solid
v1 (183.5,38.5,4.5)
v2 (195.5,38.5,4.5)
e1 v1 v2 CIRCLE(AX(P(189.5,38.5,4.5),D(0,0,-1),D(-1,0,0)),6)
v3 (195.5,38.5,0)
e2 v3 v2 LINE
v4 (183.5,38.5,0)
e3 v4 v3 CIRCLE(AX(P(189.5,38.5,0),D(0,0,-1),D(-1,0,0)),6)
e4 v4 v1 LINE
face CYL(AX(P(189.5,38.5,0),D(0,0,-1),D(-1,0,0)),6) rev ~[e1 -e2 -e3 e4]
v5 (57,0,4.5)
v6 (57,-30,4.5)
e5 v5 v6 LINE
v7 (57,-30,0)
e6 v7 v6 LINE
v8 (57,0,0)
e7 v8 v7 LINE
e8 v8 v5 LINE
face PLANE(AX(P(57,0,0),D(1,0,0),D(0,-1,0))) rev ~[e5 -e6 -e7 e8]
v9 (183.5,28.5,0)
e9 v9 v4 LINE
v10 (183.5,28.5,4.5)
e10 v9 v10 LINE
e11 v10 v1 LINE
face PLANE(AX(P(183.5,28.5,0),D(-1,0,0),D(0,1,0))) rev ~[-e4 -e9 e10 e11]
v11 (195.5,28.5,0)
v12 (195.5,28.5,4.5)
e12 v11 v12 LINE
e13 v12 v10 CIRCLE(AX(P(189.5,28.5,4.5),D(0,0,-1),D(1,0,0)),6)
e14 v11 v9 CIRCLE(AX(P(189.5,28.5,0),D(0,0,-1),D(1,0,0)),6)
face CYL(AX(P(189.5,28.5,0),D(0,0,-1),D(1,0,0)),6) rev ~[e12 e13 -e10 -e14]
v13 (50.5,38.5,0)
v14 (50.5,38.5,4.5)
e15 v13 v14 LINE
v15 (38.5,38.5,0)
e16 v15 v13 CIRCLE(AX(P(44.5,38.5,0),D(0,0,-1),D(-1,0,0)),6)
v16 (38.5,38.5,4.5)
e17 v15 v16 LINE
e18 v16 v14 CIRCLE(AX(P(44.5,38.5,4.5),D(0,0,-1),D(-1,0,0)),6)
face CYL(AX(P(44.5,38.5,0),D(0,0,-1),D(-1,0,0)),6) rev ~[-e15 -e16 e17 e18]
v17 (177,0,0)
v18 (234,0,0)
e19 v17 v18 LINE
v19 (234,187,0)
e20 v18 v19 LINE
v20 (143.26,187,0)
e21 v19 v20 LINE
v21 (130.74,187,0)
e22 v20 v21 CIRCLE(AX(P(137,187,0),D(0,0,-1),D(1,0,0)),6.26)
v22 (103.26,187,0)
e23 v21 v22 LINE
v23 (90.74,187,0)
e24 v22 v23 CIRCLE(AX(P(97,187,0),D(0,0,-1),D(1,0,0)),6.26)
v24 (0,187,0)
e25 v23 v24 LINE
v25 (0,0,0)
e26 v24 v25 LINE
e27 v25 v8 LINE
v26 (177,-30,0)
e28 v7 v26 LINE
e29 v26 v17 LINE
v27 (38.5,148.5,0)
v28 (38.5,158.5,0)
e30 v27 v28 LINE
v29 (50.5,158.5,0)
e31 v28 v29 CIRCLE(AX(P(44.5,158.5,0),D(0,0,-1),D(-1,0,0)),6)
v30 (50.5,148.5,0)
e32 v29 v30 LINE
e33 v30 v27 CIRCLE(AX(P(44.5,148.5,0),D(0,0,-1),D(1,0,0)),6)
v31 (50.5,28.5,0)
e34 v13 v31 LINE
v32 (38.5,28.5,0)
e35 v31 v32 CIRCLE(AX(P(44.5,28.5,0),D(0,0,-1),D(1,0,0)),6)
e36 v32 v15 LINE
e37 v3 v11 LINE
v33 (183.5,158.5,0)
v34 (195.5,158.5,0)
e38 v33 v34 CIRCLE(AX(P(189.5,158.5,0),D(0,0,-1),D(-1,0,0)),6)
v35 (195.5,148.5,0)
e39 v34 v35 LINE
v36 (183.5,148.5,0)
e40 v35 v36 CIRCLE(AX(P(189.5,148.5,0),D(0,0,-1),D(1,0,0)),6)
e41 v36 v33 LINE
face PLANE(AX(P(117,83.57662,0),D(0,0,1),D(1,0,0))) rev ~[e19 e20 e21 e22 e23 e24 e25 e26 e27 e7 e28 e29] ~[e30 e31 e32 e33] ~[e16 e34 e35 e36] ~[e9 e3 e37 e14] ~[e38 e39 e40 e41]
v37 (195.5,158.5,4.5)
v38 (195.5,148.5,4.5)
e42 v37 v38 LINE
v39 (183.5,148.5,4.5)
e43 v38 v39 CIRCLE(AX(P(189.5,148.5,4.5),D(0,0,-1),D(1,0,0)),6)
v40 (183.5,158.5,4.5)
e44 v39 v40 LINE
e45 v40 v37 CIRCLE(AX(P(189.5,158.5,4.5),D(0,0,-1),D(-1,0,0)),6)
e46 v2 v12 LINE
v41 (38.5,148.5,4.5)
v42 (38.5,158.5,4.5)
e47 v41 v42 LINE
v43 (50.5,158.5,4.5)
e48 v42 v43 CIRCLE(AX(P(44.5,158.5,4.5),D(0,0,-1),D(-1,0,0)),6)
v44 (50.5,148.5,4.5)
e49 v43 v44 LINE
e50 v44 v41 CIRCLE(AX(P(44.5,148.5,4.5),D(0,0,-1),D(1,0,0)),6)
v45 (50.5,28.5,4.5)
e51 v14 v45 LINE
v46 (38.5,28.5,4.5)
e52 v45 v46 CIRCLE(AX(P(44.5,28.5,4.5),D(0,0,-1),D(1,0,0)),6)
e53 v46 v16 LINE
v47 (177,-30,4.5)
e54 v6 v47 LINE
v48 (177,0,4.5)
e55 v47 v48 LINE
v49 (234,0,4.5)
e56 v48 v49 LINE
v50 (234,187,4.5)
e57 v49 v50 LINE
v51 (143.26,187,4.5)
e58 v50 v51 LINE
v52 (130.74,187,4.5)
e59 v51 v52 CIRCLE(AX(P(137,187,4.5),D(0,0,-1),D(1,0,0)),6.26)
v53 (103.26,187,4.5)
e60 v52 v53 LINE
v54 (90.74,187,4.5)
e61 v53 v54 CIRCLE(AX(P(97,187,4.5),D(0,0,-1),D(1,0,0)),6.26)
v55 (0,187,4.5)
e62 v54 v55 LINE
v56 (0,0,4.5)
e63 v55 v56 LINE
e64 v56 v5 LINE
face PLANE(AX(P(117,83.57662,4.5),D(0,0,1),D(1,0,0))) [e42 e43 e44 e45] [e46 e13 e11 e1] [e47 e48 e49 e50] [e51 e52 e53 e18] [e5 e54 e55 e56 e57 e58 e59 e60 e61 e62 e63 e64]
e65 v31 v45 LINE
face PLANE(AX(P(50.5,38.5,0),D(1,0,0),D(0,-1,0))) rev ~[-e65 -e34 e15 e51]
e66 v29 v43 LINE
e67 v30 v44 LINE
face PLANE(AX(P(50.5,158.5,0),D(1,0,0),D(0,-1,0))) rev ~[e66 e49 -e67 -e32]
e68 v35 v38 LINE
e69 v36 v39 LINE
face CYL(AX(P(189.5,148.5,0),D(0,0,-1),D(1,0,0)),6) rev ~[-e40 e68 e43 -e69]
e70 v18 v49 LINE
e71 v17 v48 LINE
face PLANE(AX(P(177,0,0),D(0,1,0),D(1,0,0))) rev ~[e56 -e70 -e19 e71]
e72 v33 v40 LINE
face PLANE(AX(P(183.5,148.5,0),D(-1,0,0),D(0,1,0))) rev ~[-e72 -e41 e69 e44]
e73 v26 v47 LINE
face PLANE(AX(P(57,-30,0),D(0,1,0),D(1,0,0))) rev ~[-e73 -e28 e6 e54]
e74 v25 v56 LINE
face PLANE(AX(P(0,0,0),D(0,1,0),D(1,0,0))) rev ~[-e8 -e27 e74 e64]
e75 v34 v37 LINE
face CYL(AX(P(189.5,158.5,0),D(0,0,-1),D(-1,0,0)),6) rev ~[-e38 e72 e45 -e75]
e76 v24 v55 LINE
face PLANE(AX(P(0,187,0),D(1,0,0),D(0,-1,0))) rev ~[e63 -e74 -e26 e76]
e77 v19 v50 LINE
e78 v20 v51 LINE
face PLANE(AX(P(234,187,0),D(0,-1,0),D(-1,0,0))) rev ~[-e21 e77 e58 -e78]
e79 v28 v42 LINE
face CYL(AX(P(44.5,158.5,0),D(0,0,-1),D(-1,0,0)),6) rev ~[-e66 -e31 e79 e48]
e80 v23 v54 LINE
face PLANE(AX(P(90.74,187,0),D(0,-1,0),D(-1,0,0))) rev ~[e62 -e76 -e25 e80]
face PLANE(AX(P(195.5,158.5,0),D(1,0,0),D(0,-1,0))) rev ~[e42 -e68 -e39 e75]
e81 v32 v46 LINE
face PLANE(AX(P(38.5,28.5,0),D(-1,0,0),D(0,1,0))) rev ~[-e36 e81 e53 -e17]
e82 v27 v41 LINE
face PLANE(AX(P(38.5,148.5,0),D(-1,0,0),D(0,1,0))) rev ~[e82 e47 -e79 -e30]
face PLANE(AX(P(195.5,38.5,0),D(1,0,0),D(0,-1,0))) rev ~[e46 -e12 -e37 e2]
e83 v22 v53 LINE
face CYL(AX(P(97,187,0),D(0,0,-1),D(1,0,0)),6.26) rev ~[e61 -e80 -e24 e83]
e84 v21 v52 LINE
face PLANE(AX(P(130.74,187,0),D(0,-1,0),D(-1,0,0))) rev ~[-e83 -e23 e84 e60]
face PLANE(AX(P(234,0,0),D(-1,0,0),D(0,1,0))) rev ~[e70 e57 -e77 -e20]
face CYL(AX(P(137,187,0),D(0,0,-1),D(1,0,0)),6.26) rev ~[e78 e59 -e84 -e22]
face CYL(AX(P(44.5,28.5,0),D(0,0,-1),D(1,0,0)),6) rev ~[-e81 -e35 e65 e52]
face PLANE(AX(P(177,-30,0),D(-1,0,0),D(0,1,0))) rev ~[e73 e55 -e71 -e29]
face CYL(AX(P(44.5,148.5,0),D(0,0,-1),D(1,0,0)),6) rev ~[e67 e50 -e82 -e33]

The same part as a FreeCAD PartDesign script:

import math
import FreeCAD as App
import Part
import Sketcher

doc = App.newDocument("Part")
body = doc.addObject("PartDesign::Body", "Body")

# Sketch on XY plane
sketch1 = body.newObject("Sketcher::SketchObject", "Sketch")
sketch1.AttachmentSupport = (doc.getObject("XY_Plane"), [""])
sketch1.MapMode = "FlatFace"
sketch1.addGeometry([
    Part.LineSegment(App.Vector(0, 187, 0), App.Vector(0, 0, 0)),  # 0
    Part.LineSegment(App.Vector(0, 0, 0), App.Vector(57, 0, 0)),  # 1
    Part.LineSegment(App.Vector(57, 0, 0), App.Vector(57, -30, 0)),  # 2
    Part.LineSegment(App.Vector(57, -30, 0), App.Vector(177, -30, 0)),  # 3
    Part.LineSegment(App.Vector(177, -30, 0), App.Vector(177, 0, 0)),  # 4
    Part.LineSegment(App.Vector(177, 0, 0), App.Vector(234, 0, 0)),  # 5
    Part.LineSegment(App.Vector(234, 0, 0), App.Vector(234, 187, 0)),  # 6
    Part.LineSegment(App.Vector(234, 187, 0), App.Vector(143, 187, 0)),  # 7
    Part.ArcOfCircle(Part.Circle(App.Vector(137, 187, 0), App.Vector(0, 0, 1), 6), math.radians(180), math.radians(360)),  # 8
    Part.LineSegment(App.Vector(131, 187, 0), App.Vector(103, 187, 0)),  # 9
    Part.ArcOfCircle(Part.Circle(App.Vector(97, 187, 0), App.Vector(0, 0, 1), 6), math.radians(180), math.radians(360)),  # 10
    Part.LineSegment(App.Vector(91, 187, 0), App.Vector(0, 187, 0)),  # 11
    Part.LineSegment(App.Vector(50, 38, 0), App.Vector(50, 28, 0)),  # 12
    Part.ArcOfCircle(Part.Circle(App.Vector(44, 28, 0), App.Vector(0, 0, 1), 6), math.radians(180), math.radians(360)),  # 13
    Part.LineSegment(App.Vector(38, 28, 0), App.Vector(38, 38, 0)),  # 14
    Part.ArcOfCircle(Part.Circle(App.Vector(44, 38, 0), App.Vector(0, 0, 1), 6), math.radians(0), math.radians(180)),  # 15
    Part.LineSegment(App.Vector(196, 38, 0), App.Vector(196, 28, 0)),  # 16
    Part.ArcOfCircle(Part.Circle(App.Vector(190, 28, 0), App.Vector(0, 0, 1), 6), math.radians(180), math.radians(360)),  # 17
    Part.LineSegment(App.Vector(184, 28, 0), App.Vector(184, 38, 0)),  # 18
    Part.ArcOfCircle(Part.Circle(App.Vector(190, 38, 0), App.Vector(0, 0, 1), 6), math.radians(0), math.radians(180)),  # 19
    Part.LineSegment(App.Vector(50, 158, 0), App.Vector(50, 148, 0)),  # 20
    Part.ArcOfCircle(Part.Circle(App.Vector(44, 148, 0), App.Vector(0, 0, 1), 6), math.radians(180), math.radians(360)),  # 21
    Part.LineSegment(App.Vector(38, 148, 0), App.Vector(38, 158, 0)),  # 22
    Part.ArcOfCircle(Part.Circle(App.Vector(44, 158, 0), App.Vector(0, 0, 1), 6), math.radians(0), math.radians(180)),  # 23
    Part.LineSegment(App.Vector(196, 158, 0), App.Vector(196, 148, 0)),  # 24
    Part.ArcOfCircle(Part.Circle(App.Vector(190, 148, 0), App.Vector(0, 0, 1), 6), math.radians(180), math.radians(360)),  # 25
    Part.LineSegment(App.Vector(184, 148, 0), App.Vector(184, 158, 0)),  # 26
    Part.ArcOfCircle(Part.Circle(App.Vector(190, 158, 0), App.Vector(0, 0, 1), 6), math.radians(0), math.radians(180)),  # 27
], False)
sketch1.addConstraint([
    Sketcher.Constraint("Coincident", 0, 2, 1, 1),
    Sketcher.Constraint("Coincident", 1, 2, 2, 1),
    Sketcher.Constraint("Coincident", 2, 2, 3, 1),
    Sketcher.Constraint("Coincident", 3, 2, 4, 1),
    Sketcher.Constraint("Coincident", 4, 2, 5, 1),
    Sketcher.Constraint("Coincident", 5, 2, 6, 1),
    Sketcher.Constraint("Coincident", 6, 2, 7, 1),
    Sketcher.Constraint("Coincident", 7, 2, 8, 2),
    Sketcher.Constraint("Coincident", 8, 1, 9, 1),
    Sketcher.Constraint("Coincident", 9, 2, 10, 2),
    Sketcher.Constraint("Coincident", 10, 1, 11, 1),
    Sketcher.Constraint("Coincident", 11, 2, 0, 1),
    Sketcher.Constraint("Tangent", 12, 2, 13, 2),
    Sketcher.Constraint("Tangent", 13, 1, 14, 1),
    Sketcher.Constraint("Tangent", 14, 2, 15, 2),
    Sketcher.Constraint("Tangent", 15, 1, 12, 1),
    Sketcher.Constraint("Tangent", 16, 2, 17, 2),
    Sketcher.Constraint("Tangent", 17, 1, 18, 1),
    Sketcher.Constraint("Tangent", 18, 2, 19, 2),
    Sketcher.Constraint("Tangent", 19, 1, 16, 1),
    Sketcher.Constraint("Tangent", 20, 2, 21, 2),
    Sketcher.Constraint("Tangent", 21, 1, 22, 1),
    Sketcher.Constraint("Tangent", 22, 2, 23, 2),
    Sketcher.Constraint("Tangent", 23, 1, 20, 1),
    Sketcher.Constraint("Tangent", 24, 2, 25, 2),
    Sketcher.Constraint("Tangent", 25, 1, 26, 1),
    Sketcher.Constraint("Tangent", 26, 2, 27, 2),
    Sketcher.Constraint("Tangent", 27, 1, 24, 1),
    Sketcher.Constraint("Vertical", 0),
    Sketcher.Constraint("Horizontal", 1),
    Sketcher.Constraint("Vertical", 2),
    Sketcher.Constraint("Horizontal", 3),
    Sketcher.Constraint("Vertical", 4),
    Sketcher.Constraint("Horizontal", 5),
    Sketcher.Constraint("Vertical", 6),
    Sketcher.Constraint("Horizontal", 7),
    Sketcher.Constraint("Horizontal", 9),
    Sketcher.Constraint("Horizontal", 11),
    Sketcher.Constraint("Vertical", 12),
    Sketcher.Constraint("Vertical", 14),
    Sketcher.Constraint("Vertical", 16),
    Sketcher.Constraint("Vertical", 18),
    Sketcher.Constraint("Vertical", 20),
    Sketcher.Constraint("Vertical", 22),
    Sketcher.Constraint("Vertical", 24),
    Sketcher.Constraint("Vertical", 26),
    Sketcher.Constraint("Coincident", 0, 2, -1, 1),
    Sketcher.Constraint("Equal", 8, 10),
    Sketcher.Constraint("Equal", 15, 17),
    Sketcher.Constraint("Equal", 19, 21),
    Sketcher.Constraint("Equal", 23, 25),
    Sketcher.Constraint("PointOnObject", 4, 2, -1),
    Sketcher.Constraint("Horizontal", 8, 3, 10, 3),
    Sketcher.Constraint("Horizontal", 13, 3, 17, 3),
    Sketcher.Constraint("Horizontal", 15, 3, 19, 3),
    Sketcher.Constraint("Horizontal", 21, 3, 25, 3),
    Sketcher.Constraint("Horizontal", 23, 3, 27, 3),
    Sketcher.Constraint("Horizontal", 10, 3, 6, 2),
    Sketcher.Constraint("Horizontal", 7, 2, 8, 1),
    Sketcher.Constraint("Horizontal", 9, 2, 10, 1),
    Sketcher.Constraint("Vertical", 15, 3, 21, 3),
    Sketcher.Constraint("Vertical", 19, 3, 25, 3),
    Sketcher.Constraint("Equal", 1, 5),
    Sketcher.Constraint("Equal", 7, 11),
    Sketcher.Constraint("Equal", 18, 20),
    Sketcher.Constraint("Radius", 13, 6.0),
    Sketcher.Constraint("DistanceX", 1, 1, 1, 2, 57.0),
    Sketcher.Constraint("DistanceX", 3, 1, 3, 2, 120.0),
    Sketcher.Constraint("DistanceY", 0, 2, 0, 1, 187.0),
    Sketcher.Constraint("DistanceY", 2, 2, 2, 1, 30.0),
    Sketcher.Constraint("DistanceY", 12, 2, 12, 1, 10.0),
    Sketcher.Constraint("Radius", 8, 6.26),
    Sketcher.Constraint("DistanceX", -1, 1, 8, 3, 137.0),
    Sketcher.Constraint("DistanceX", 13, 3, 17, 3, 145.0),
    Sketcher.Constraint("DistanceY", 15, 3, 21, 3, 110.0),
    Sketcher.Constraint("DistanceX", -1, 1, 13, 3, 44.5),
    Sketcher.Constraint("DistanceY", -1, 1, 13, 3, 28.5),
])
pad1 = body.newObject("PartDesign::Pad", "Pad")
pad1.Profile = sketch1
pad1.Length = 4.5

doc.recompute()
